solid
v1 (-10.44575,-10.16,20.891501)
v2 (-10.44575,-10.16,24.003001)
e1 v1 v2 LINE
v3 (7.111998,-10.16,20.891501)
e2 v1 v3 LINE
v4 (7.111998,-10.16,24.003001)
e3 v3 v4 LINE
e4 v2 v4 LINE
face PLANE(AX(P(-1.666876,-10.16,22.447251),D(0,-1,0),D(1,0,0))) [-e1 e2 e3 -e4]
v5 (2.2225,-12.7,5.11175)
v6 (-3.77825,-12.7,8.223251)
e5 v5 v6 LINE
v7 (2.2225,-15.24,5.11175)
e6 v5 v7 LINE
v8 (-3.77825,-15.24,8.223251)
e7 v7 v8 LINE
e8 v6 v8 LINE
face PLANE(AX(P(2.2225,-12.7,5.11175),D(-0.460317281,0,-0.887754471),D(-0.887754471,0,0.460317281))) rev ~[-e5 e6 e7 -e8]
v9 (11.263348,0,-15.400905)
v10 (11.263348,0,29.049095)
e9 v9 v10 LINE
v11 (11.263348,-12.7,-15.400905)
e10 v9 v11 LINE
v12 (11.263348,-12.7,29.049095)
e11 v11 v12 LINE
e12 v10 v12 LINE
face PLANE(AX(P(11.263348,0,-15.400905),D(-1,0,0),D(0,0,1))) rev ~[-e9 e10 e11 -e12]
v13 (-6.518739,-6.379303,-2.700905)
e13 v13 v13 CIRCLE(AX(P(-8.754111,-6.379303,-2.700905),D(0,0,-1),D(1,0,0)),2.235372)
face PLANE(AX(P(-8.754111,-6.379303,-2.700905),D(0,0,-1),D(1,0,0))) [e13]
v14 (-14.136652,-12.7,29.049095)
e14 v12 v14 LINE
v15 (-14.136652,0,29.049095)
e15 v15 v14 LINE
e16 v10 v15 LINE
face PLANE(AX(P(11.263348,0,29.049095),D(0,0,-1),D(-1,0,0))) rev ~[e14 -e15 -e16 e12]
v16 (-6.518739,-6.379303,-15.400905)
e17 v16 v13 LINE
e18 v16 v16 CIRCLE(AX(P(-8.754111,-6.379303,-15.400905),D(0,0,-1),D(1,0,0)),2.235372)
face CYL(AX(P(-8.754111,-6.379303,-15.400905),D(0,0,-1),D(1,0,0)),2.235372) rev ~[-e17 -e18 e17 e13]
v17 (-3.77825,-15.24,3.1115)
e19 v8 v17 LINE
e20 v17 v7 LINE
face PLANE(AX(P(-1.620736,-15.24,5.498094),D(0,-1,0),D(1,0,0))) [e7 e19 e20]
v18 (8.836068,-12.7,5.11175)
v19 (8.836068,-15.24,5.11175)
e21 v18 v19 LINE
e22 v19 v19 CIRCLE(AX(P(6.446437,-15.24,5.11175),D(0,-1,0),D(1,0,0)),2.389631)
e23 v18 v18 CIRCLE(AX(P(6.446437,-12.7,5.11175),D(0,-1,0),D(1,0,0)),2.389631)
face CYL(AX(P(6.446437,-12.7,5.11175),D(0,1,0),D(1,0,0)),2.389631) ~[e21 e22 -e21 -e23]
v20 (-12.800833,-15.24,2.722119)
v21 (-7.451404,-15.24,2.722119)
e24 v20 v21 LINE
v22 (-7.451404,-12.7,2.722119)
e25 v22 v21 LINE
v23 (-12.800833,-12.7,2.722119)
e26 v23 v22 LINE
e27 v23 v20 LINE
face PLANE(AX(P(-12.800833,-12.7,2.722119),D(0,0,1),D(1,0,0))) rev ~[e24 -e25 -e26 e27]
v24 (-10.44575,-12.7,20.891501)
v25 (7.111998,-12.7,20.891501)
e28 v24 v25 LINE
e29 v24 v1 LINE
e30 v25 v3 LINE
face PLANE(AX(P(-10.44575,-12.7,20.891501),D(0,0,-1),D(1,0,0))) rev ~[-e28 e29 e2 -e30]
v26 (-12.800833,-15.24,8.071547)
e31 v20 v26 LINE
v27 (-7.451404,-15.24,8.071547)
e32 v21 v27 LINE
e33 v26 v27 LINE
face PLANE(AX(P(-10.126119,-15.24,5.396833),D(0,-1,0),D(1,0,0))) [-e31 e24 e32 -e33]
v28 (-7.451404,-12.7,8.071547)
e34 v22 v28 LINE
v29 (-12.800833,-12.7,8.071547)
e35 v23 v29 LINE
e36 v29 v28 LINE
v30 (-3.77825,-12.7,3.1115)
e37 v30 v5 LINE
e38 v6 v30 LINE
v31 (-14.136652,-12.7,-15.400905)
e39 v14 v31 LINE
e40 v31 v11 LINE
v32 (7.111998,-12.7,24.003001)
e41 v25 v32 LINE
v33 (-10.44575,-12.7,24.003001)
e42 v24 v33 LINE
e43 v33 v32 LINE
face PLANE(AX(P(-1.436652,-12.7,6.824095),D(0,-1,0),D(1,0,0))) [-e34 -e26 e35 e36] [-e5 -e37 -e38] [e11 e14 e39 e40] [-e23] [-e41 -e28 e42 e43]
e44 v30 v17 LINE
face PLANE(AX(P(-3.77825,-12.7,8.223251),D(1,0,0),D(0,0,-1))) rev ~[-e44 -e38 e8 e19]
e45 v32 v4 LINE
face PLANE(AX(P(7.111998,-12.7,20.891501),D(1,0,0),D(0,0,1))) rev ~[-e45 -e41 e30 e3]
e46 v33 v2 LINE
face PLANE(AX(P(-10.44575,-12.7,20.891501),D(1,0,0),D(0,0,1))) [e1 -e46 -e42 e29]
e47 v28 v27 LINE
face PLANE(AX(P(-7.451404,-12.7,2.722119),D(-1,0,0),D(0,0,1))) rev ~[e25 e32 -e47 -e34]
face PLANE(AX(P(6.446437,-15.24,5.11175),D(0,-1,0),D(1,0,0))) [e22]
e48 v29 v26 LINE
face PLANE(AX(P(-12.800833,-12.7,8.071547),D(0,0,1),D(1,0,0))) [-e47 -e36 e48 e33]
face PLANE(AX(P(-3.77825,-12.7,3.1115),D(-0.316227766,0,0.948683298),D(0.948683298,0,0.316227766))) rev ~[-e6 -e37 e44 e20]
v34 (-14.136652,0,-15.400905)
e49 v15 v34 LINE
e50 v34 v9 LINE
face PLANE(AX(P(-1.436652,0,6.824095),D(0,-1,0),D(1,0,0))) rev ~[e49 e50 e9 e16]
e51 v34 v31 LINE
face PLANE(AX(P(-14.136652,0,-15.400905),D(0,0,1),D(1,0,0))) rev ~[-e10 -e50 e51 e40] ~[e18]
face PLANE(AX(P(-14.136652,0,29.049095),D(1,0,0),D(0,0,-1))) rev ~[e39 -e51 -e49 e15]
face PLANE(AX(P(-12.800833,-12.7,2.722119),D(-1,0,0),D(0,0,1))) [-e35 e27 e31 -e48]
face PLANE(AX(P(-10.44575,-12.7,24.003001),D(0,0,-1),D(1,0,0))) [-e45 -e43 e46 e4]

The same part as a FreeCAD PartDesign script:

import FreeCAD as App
import Part
import Sketcher
from FreeCAD import Vector
Q = App.Units.Quantity


def add_polygon(sketch, points):
    """Adds a closed chain of lines whose ends are joined by coincident constraints."""
    first, n = sketch.GeometryCount, len(points)
    for a, b in zip(points, points[1:] + points[:1]):
        sketch.addGeometry(Part.LineSegment(App.Vector(*a, 0), App.Vector(*b, 0)), False)
    for i in range(n):
        sketch.addConstraint(Sketcher.Constraint("Coincident", first + i, 2, first + (i + 1) % n, 1))

doc = App.newDocument("Part")
body = doc.addObject("PartDesign::Body", "Body")

# Sketch on XZ plane
sketch1 = body.newObject("Sketcher::SketchObject", "Sketch")
sketch1.AttachmentSupport = (doc.getObject("XZ_Plane"), [""])
sketch1.MapMode = "FlatFace"
add_polygon(sketch1, [(-14, 29), (-14, -15), (11, -15), (11, 29)])  # lines 0-3
sketch1.addConstraint([
    Sketcher.Constraint("Vertical", 0),
    Sketcher.Constraint("Horizontal", 1),
    Sketcher.Constraint("Vertical", 2),
    Sketcher.Constraint("Horizontal", 3),
    Sketcher.Constraint("DistanceX", 1, 1, 1, 2, Q("1 in")),
    Sketcher.Constraint("DistanceY", 0, 2, 0, 1, Q("1.75 in")),
    Sketcher.Constraint("DistanceX", 0, 2, -1, 1, Q("14.136652 mm")),
    Sketcher.Constraint("DistanceY", 0, 2, -1, 1, Q("15.400905 mm")),
])
pad1 = body.newObject("PartDesign::Pad", "Pad")
pad1.Profile = sketch1
pad1.Length = Q("0.5 in")

# Sketch on XZ plane
sketch2 = body.newObject("Sketcher::SketchObject", "Sketch001")
sketch2.AttachmentSupport = (doc.getObject("XZ_Plane"), [""])
sketch2.MapMode = "FlatFace"
sketch2.AttachmentOffset = App.Placement(Vector(0, 0, 0.5 * 25.4), App.Rotation())
add_polygon(sketch2, [(-10.4, 24), (-10.4, 20.9), (7.1, 20.9), (7.1, 24)])  # lines 0-3
sketch2.addConstraint([
    Sketcher.Constraint("Vertical", 0),
    Sketcher.Constraint("Horizontal", 1),
    Sketcher.Constraint("Vertical", 2),
    Sketcher.Constraint("Horizontal", 3),
    Sketcher.Constraint("DistanceX", -1, 1, 1, 2, Q("0.2799999 in")),
    Sketcher.Constraint("DistanceY", 0, 2, 0, 1, Q("0.1225 in")),
    Sketcher.Constraint("DistanceY", -1, 1, 2, 2, Q("0.945 in")),
    Sketcher.Constraint("DistanceX", 1, 1, 1, 2, Q("17.557748 mm")),
])
pocket1 = body.newObject("PartDesign::Pocket", "Pocket")
pocket1.Profile = sketch2
pocket1.Length = Q("0.1 in")

# Sketch on XZ plane
sketch3 = body.newObject("Sketcher::SketchObject", "Sketch002")
sketch3.AttachmentSupport = (doc.getObject("XZ_Plane"), [""])
sketch3.MapMode = "FlatFace"
sketch3.AttachmentOffset = App.Placement(Vector(0, 0, 0.5 * 25.4), App.Rotation())
add_polygon(sketch3, [(2, 5), (-4, 8), (-4, 3)])  # lines 0-2
sketch3.addConstraint([
    Sketcher.Constraint("Vertical", 1),
    Sketcher.Constraint("DistanceY", -1, 1, 1, 2, Q("0.1225 in")),
    Sketcher.Constraint("DistanceX", -1, 1, 2, 2, Q("0.0875 in")),
    Sketcher.Constraint("DistanceY", 2, 2, 0, 2, Q("0.1225 in")),
    Sketcher.Constraint("DistanceY", 1, 2, 1, 1, Q("5.111751 mm")),
    Sketcher.Constraint("Distance", 0, Q("6.75947 mm")),
])
pad2 = body.newObject("PartDesign::Pad", "Pad001")
pad2.Profile = sketch3
pad2.Length = Q("0.1 in")

# Sketch on XZ plane
sketch4 = body.newObject("Sketcher::SketchObject", "Sketch003")
sketch4.AttachmentSupport = (doc.getObject("XZ_Plane"), [""])
sketch4.MapMode = "FlatFace"
sketch4.AttachmentOffset = App.Placement(Vector(0, 0, 0.5 * 25.4), App.Rotation())
add_polygon(sketch4, [(-13, 8), (-13, 3), (-7, 3), (-7, 8)])  # lines 0-3
sketch4.addConstraint([
    Sketcher.Constraint("Vertical", 0),
    Sketcher.Constraint("Horizontal", 1),
    Sketcher.Constraint("Vertical", 2),
    Sketcher.Constraint("Horizontal", 3),
    Sketcher.Constraint("Equal", 3, 0),
    Sketcher.Constraint("DistanceX", 1, 1, 1, 2, Q("5.349429 mm")),
    Sketcher.Constraint("DistanceY", -1, 1, 0, 2, Q("2.722119 mm")),
    Sketcher.Constraint("DistanceX", 0, 2, -1, 1, Q("12.800833 mm")),
])
pad3 = body.newObject("PartDesign::Pad", "Pad002")
pad3.Profile = sketch4
pad3.Length = Q("0.1 in")

# Sketch on XZ plane
sketch5 = body.newObject("Sketcher::SketchObject", "Sketch004")
sketch5.AttachmentSupport = (doc.getObject("XZ_Plane"), [""])
sketch5.MapMode = "FlatFace"
sketch5.AttachmentOffset = App.Placement(Vector(0, 0, 0.5 * 25.4), App.Rotation())
sketch5.addGeometry(Part.Circle(Vector(6.4, 5.1, 0), Vector(0, 0, 1), 2.4), False)
sketch5.addConstraint([
    Sketcher.Constraint("Diameter", 0, Q("4.779262 mm")),
    Sketcher.Constraint("DistanceY", -1, 1, 0, 3, Q("5.11175 mm")),
    Sketcher.Constraint("DistanceX", -1, 1, 0, 3, Q("6.446437 mm")),
])
pad4 = body.newObject("PartDesign::Pad", "Pad003")
pad4.Profile = sketch5
pad4.Length = Q("0.1 in")

# Sketch on XY plane
sketch6 = body.newObject("Sketcher::SketchObject", "Sketch005")
sketch6.AttachmentSupport = (doc.getObject("XY_Plane"), [""])
sketch6.MapMode = "FlatFace"
sketch6.AttachmentOffset = App.Placement(Vector(0, 0, -15.400905), App.Rotation())
sketch6.addGeometry(Part.Circle(Vector(-8.8, -6.4, 0), Vector(0, 0, 1), 2.2), False)
sketch6.addConstraint([
    Sketcher.Constraint("Diameter", 0, Q("4.470744 mm")),
    Sketcher.Constraint("DistanceX", 0, 3, -1, 1, Q("8.754111 mm")),
    Sketcher.Constraint("DistanceY", 0, 3, -1, 1, Q("6.379303 mm")),
])
pocket2 = body.newObject("PartDesign::Pocket", "Pocket001")
pocket2.Profile = sketch6
pocket2.Length = Q("0.5 in")
pocket2.Reversed = True

doc.recompute()
